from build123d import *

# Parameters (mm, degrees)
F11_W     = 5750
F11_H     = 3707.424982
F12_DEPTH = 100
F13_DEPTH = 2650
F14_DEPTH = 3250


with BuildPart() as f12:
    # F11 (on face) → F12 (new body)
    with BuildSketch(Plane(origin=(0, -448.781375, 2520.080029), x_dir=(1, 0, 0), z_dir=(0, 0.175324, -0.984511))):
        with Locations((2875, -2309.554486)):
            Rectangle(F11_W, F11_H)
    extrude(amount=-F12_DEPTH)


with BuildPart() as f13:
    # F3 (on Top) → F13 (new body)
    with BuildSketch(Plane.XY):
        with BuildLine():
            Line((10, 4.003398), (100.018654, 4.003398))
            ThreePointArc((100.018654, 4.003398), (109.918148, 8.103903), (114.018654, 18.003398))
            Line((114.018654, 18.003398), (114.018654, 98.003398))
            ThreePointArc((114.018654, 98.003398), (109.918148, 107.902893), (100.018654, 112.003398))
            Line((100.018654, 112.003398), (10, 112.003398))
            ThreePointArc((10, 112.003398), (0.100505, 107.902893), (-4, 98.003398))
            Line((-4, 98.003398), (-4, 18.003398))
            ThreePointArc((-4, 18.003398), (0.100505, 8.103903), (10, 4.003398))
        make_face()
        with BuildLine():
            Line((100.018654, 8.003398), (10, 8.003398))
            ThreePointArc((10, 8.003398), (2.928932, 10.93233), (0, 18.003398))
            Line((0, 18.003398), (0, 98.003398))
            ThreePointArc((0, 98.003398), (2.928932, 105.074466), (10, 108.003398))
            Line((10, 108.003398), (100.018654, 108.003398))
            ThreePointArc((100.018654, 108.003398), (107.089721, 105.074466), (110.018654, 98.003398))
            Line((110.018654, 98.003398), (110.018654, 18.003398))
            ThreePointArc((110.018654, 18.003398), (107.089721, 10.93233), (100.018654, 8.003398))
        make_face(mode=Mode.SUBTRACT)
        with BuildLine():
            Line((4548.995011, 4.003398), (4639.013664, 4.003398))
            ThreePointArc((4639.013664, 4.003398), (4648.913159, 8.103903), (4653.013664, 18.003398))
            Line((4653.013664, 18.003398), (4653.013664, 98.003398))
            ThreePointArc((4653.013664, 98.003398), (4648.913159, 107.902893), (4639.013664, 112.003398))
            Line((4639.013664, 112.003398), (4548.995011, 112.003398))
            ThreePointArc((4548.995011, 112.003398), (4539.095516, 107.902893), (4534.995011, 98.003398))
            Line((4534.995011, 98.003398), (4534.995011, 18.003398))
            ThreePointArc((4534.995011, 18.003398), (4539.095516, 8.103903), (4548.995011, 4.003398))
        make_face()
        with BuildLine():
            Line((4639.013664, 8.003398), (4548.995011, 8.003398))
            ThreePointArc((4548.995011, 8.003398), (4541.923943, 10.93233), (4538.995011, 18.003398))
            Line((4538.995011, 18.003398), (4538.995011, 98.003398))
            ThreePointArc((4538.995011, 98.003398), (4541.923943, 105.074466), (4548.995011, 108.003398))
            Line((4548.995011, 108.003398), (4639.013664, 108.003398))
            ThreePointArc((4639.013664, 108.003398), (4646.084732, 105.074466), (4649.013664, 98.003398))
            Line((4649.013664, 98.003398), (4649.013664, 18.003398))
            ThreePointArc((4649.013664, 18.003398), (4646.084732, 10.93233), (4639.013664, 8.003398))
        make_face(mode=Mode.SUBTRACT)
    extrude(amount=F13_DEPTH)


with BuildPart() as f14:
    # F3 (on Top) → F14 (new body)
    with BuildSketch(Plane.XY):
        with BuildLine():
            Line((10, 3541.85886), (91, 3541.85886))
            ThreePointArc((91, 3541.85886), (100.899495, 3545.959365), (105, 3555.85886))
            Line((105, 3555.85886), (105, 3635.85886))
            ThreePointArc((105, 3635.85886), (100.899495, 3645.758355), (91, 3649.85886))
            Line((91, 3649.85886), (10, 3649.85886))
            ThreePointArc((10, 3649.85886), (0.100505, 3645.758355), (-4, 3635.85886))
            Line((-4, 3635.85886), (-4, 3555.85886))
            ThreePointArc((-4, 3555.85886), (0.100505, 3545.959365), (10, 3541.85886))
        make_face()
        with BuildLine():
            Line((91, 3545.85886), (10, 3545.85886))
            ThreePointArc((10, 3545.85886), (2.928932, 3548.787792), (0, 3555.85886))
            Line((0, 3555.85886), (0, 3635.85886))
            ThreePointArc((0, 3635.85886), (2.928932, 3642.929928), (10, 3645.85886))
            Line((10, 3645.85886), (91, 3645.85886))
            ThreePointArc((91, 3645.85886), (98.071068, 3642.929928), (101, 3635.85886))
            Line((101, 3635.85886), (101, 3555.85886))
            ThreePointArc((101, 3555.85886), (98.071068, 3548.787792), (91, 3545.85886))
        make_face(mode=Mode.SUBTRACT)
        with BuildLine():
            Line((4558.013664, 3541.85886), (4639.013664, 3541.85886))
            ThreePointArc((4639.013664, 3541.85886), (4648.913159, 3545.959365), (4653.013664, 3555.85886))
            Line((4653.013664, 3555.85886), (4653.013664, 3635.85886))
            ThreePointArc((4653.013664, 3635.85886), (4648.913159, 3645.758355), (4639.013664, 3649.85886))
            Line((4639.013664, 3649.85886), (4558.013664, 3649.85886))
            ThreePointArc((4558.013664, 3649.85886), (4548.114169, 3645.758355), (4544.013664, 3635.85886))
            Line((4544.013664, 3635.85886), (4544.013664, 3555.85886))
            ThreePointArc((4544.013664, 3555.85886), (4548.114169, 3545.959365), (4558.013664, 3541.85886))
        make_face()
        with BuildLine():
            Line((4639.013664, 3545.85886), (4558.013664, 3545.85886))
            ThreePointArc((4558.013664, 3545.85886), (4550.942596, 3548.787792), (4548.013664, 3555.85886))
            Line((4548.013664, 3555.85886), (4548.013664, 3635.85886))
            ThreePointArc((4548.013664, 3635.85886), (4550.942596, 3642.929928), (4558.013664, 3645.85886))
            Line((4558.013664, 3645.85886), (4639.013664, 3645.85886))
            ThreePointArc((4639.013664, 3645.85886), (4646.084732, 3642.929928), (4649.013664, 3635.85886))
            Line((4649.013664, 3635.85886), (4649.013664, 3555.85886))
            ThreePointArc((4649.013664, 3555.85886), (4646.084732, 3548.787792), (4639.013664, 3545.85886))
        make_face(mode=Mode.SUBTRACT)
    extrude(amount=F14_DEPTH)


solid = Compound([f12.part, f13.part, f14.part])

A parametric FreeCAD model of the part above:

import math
import FreeCAD as App
import Part
import Sketcher

V = App.Vector
Q = App.Units.Quantity

doc = App.newDocument("Part")
params = doc.addObject("Spreadsheet::Sheet", "Params")
for row, (alias, value) in enumerate([
    ("sketch1_width", "5750 mm"),
    ("pad1_length", "100 mm"),
    ("sketch2_radius", "14.000001 mm"),
    ("sketch2_radius2", "10.000001 mm"),
    ("sketch2_height", "80 mm"),
    ("pad2_length", "2650 mm"),
    ("sketch3_radius", "14 mm"),
    ("sketch3_radius2", "9.999999 mm"),
    ("sketch3_width", "81 mm"),
    ("sketch3_height", "80 mm"),
    ("pad3_length", "3250 mm"),
], start=1):
    params.set(f"A{row}", alias)
    params.set(f"B{row}", "=" + value)
    params.setAlias(f"B{row}", alias)

body = doc.addObject("PartDesign::Body", "Body")

sketch1 = doc.addObject("Sketcher::SketchObject", "Sketch")
body.addObject(sketch1)
sketch1.Placement = App.Placement(V(0, -448.781375, 2520.080029), App.Rotation(V(1, 0, 0), V(0, -0.984510796, -0.175323964), V(0, 0.175323964, -0.984510796), "ZXY"))
sketch1.addGeometry([
    Part.LineSegment(V(0, -455.841995, 0), V(0, -4163.266976, 0)),
    Part.LineSegment(V(0, -4163.266976, 0), V(5750, -4163.266976, 0)),
    Part.LineSegment(V(5750, -4163.266976, 0), V(5750, -455.841995, 0)),
    Part.LineSegment(V(5750, -455.841995, 0), V(0, -455.841995, 0)),
], False)
sketch1.addConstraint([
    Sketcher.Constraint("Coincident", 0, 2, 1, 1),
    Sketcher.Constraint("Coincident", 1, 2, 2, 1),
    Sketcher.Constraint("Coincident", 2, 2, 3, 1),
    Sketcher.Constraint("Coincident", 3, 2, 0, 1),
    Sketcher.Constraint("Vertical", 0),
    Sketcher.Constraint("Horizontal", 1),
    Sketcher.Constraint("Vertical", 2),
    Sketcher.Constraint("Horizontal", 3),
    Sketcher.Constraint("PointOnObject", 0, 2, -2),
    Sketcher.Constraint("DistanceX", 1, 1, 1, 2, Q("5750 mm")),
    Sketcher.Constraint("DistanceY", 0, 2, 0, 1, Q("3707.424981 mm")),
    Sketcher.Constraint("DistanceY", 0, 2, -1, 1, Q("4163.266976 mm")),
])
sketch1.setExpression("Constraints[9]", "Params.sketch1_width")
pad1 = doc.addObject("PartDesign::Pad", "Pad")
body.addObject(pad1)
pad1.Profile = sketch1
pad1.setExpression("Length", "Params.pad1_length")
pad1.Reversed = True
body2 = doc.addObject("PartDesign::Body", "Body001")
body2.AllowCompound = True

sketch2 = doc.addObject("Sketcher::SketchObject", "Sketch001")
body2.addObject(sketch2)
sketch2.AttachmentSupport = (doc.getObject("XY_Plane001"), [""])
sketch2.MapMode = "FlatFace"
sketch2.addGeometry([
    Part.LineSegment(V(10, 4.003398, 0), V(100.018654, 4.003398, 0)),
    Part.ArcOfCircle(Part.Circle(V(100.018653, 18.003399, 0), V(0, 0, 1), 14.000001), math.radians(-89.999994), math.radians(-0.000006)),
    Part.LineSegment(V(114.018654, 18.003398, 0), V(114.018654, 98.003398, 0)),
    Part.ArcOfCircle(Part.Circle(V(100.018653, 98.003397, 0), V(0, 0, 1), 14.000001), math.radians(0.000006), math.radians(89.999994)),
    Part.LineSegment(V(100.018654, 112.003398, 0), V(10, 112.003398, 0)),
    Part.ArcOfCircle(Part.Circle(V(10, 98.003398, 0), V(0, 0, 1), 14), math.radians(89.999999), math.radians(180.000001)),
    Part.LineSegment(V(-4, 98.003398, 0), V(-4, 18.003398, 0)),
    Part.ArcOfCircle(Part.Circle(V(10, 18.003398, 0), V(0, 0, 1), 14), math.radians(179.999999), math.radians(270.000001)),
    Part.ArcOfCircle(Part.Circle(V(100.018653, 18.003399, 0), V(0, 0, 1), 10.000001), math.radians(-89.999994), math.radians(-0.000006)),
    Part.LineSegment(V(100.018654, 8.003398, 0), V(10, 8.003398, 0)),
    Part.ArcOfCircle(Part.Circle(V(9.999999, 18.003397, 0), V(0, 0, 1), 9.999999), math.radians(179.999996), math.radians(270.000004)),
    Part.LineSegment(V(0, 18.003398, 0), V(0, 98.003398, 0)),
    Part.ArcOfCircle(Part.Circle(V(9.999999, 98.003399, 0), V(0, 0, 1), 9.999999), math.radians(89.999996), math.radians(180.000004)),
    Part.LineSegment(V(10, 108.003398, 0), V(100.018654, 108.003398, 0)),
    Part.ArcOfCircle(Part.Circle(V(100.018653, 98.003397, 0), V(0, 0, 1), 10.000001), math.radians(0.000006), math.radians(89.999994)),
    Part.LineSegment(V(110.018654, 98.003398, 0), V(110.018654, 18.003398, 0)),
    Part.LineSegment(V(4548.995011, 4.003398, 0), V(4639.013664, 4.003398, 0)),
    Part.ArcOfCircle(Part.Circle(V(4639.013664, 18.003398, 0), V(0, 0, 1), 14), math.radians(-90.000001), math.radians(0.000001)),
    Part.LineSegment(V(4653.013664, 18.003398, 0), V(4653.013664, 98.003398, 0)),
    Part.ArcOfCircle(Part.Circle(V(4639.013664, 98.003398, 0), V(0, 0, 1), 14), math.radians(-0.000001), math.radians(90.000001)),
    Part.LineSegment(V(4639.013664, 112.003398, 0), V(4548.995011, 112.003398, 0)),
    Part.ArcOfCircle(Part.Circle(V(4548.995011, 98.003398, 0), V(0, 0, 1), 14), math.radians(89.999999), math.radians(180.000001)),
    Part.LineSegment(V(4534.995011, 98.003398, 0), V(4534.995011, 18.003398, 0)),
    Part.ArcOfCircle(Part.Circle(V(4548.995011, 18.003398, 0), V(0, 0, 1), 14), math.radians(179.999999), math.radians(270.000001)),
    Part.ArcOfCircle(Part.Circle(V(4639.013665, 18.003397, 0), V(0, 0, 1), 9.999999), math.radians(-90.000004), math.radians(0.000004)),
    Part.LineSegment(V(4639.013664, 8.003398, 0), V(4548.995011, 8.003398, 0)),
    Part.ArcOfCircle(Part.Circle(V(4548.99501, 18.003397, 0), V(0, 0, 1), 9.999999), math.radians(179.999996), math.radians(270.000004)),
    Part.LineSegment(V(4538.995011, 18.003398, 0), V(4538.995011, 98.003398, 0)),
    Part.ArcOfCircle(Part.Circle(V(4548.99501, 98.003399, 0), V(0, 0, 1), 9.999999), math.radians(89.999996), math.radians(180.000004)),
    Part.LineSegment(V(4548.995011, 108.003398, 0), V(4639.013664, 108.003398, 0)),
    Part.ArcOfCircle(Part.Circle(V(4639.013665, 98.003399, 0), V(0, 0, 1), 9.999999), math.radians(-0.000004), math.radians(90.000004)),
    Part.LineSegment(V(4649.013664, 98.003398, 0), V(4649.013664, 18.003398, 0)),
], False)
sketch2.addConstraint([
    Sketcher.Constraint("Tangent", 0, 2, 1, 1),
    Sketcher.Constraint("Tangent", 1, 2, 2, 1),
    Sketcher.Constraint("Tangent", 2, 2, 3, 1),
    Sketcher.Constraint("Tangent", 3, 2, 4, 1),
    Sketcher.Constraint("Tangent", 4, 2, 5, 1),
    Sketcher.Constraint("Tangent", 5, 2, 6, 1),
    Sketcher.Constraint("Tangent", 6, 2, 7, 1),
    Sketcher.Constraint("Tangent", 7, 2, 0, 1),
    Sketcher.Constraint("Tangent", 8, 1, 9, 1),
    Sketcher.Constraint("Tangent", 9, 2, 10, 2),
    Sketcher.Constraint("Tangent", 10, 1, 11, 1),
    Sketcher.Constraint("Tangent", 11, 2, 12, 2),
    Sketcher.Constraint("Tangent", 12, 1, 13, 1),
    Sketcher.Constraint("Tangent", 13, 2, 14, 2),
    Sketcher.Constraint("Tangent", 14, 1, 15, 1),
    Sketcher.Constraint("Tangent", 15, 2, 8, 2),
    Sketcher.Constraint("Tangent", 16, 2, 17, 1),
    Sketcher.Constraint("Tangent", 17, 2, 18, 1),
    Sketcher.Constraint("Tangent", 18, 2, 19, 1),
    Sketcher.Constraint("Tangent", 19, 2, 20, 1),
    Sketcher.Constraint("Tangent", 20, 2, 21, 1),
    Sketcher.Constraint("Tangent", 21, 2, 22, 1),
    Sketcher.Constraint("Tangent", 22, 2, 23, 1),
    Sketcher.Constraint("Tangent", 23, 2, 16, 1),
    Sketcher.Constraint("Tangent", 24, 1, 25, 1),
    Sketcher.Constraint("Tangent", 25, 2, 26, 2),
    Sketcher.Constraint("Tangent", 26, 1, 27, 1),
    Sketcher.Constraint("Tangent", 27, 2, 28, 2),
    Sketcher.Constraint("Tangent", 28, 1, 29, 1),
    Sketcher.Constraint("Tangent", 29, 2, 30, 2),
    Sketcher.Constraint("Tangent", 30, 1, 31, 1),
    Sketcher.Constraint("Tangent", 31, 2, 24, 2),
    Sketcher.Constraint("Horizontal", 0),
    Sketcher.Constraint("Vertical", 2),
    Sketcher.Constraint("Horizontal", 4),
    Sketcher.Constraint("Vertical", 6),
    Sketcher.Constraint("Horizontal", 9),
    Sketcher.Constraint("Vertical", 11),
    Sketcher.Constraint("Horizontal", 13),
    Sketcher.Constraint("Vertical", 15),
    Sketcher.Constraint("Horizontal", 16),
    Sketcher.Constraint("Vertical", 18),
    Sketcher.Constraint("Horizontal", 20),
    Sketcher.Constraint("Vertical", 22),
    Sketcher.Constraint("Horizontal", 25),
    Sketcher.Constraint("Vertical", 27),
    Sketcher.Constraint("Horizontal", 29),
    Sketcher.Constraint("Vertical", 31),
    Sketcher.Constraint("Coincident", 8, 3, 1, 3),
    Sketcher.Constraint("Coincident", 10, 3, 7, 3),
    Sketcher.Constraint("Coincident", 12, 3, 5, 3),
    Sketcher.Constraint("Coincident", 24, 3, 17, 3),
    Sketcher.Constraint("Coincident", 26, 3, 23, 3),
    Sketcher.Constraint("Coincident", 28, 3, 21, 3),
    Sketcher.Constraint("Equal", 1, 3),
    Sketcher.Constraint("Equal", 3, 5),
    Sketcher.Constraint("Equal", 5, 7),
    Sketcher.Constraint("Equal", 12, 14),
    Sketcher.Constraint("Equal", 7, 17),
    Sketcher.Constraint("Equal", 17, 19),
    Sketcher.Constraint("Equal", 19, 21),
    Sketcher.Constraint("Equal", 21, 23),
    Sketcher.Constraint("Equal", 14, 24),
    Sketcher.Constraint("Equal", 28, 30),
    Sketcher.Constraint("PointOnObject", 10, 1, -2),
    Sketcher.Constraint("Horizontal", 10, 3, 17, 3),
    Sketcher.Constraint("Horizontal", 14, 3, 19, 3),
    Sketcher.Constraint("Equal", 13, 16),
    Sketcher.Constraint("Radius", 1, Q("14.000001 mm")),
    Sketcher.Constraint("Radius", 8, Q("10.000001 mm")),
    Sketcher.Constraint("DistanceY", 2, 1, 2, 2, Q("80 mm")),
    Sketcher.Constraint("DistanceY", -1, 1, 1, 3, Q("18.003399 mm")),
    Sketcher.Constraint("DistanceX", 0, 1, 0, 2, Q("90.018654 mm")),
    Sketcher.Constraint("DistanceX", -1, 1, 21, 3, Q("4548.995011 mm")),
])
sketch2.setExpression("Constraints[68]", "Params.sketch2_radius")
sketch2.setExpression("Constraints[69]", "Params.sketch2_radius2")
sketch2.setExpression("Constraints[70]", "Params.sketch2_height")
pad2 = doc.addObject("PartDesign::Pad", "Pad001")
body2.addObject(pad2)
pad2.Profile = sketch2
pad2.setExpression("Length", "Params.pad2_length")
body3 = doc.addObject("PartDesign::Body", "Body002")
body3.AllowCompound = True

sketch3 = doc.addObject("Sketcher::SketchObject", "Sketch002")
body3.addObject(sketch3)
sketch3.AttachmentSupport = (doc.getObject("XY_Plane002"), [""])
sketch3.MapMode = "FlatFace"
sketch3.addGeometry([
    Part.LineSegment(V(10, 3541.85886, 0), V(91, 3541.85886, 0)),
    Part.ArcOfCircle(Part.Circle(V(91, 3555.85886, 0), V(0, 0, 1), 14), math.radians(-90.000001), math.radians(0.000001)),
    Part.LineSegment(V(105, 3555.85886, 0), V(105, 3635.85886, 0)),
    Part.ArcOfCircle(Part.Circle(V(91, 3635.85886, 0), V(0, 0, 1), 14), math.radians(-0.000001), math.radians(90.000001)),
    Part.LineSegment(V(91, 3649.85886, 0), V(10, 3649.85886, 0)),
    Part.ArcOfCircle(Part.Circle(V(10, 3635.85886, 0), V(0, 0, 1), 14), math.radians(89.999999), math.radians(180.000001)),
    Part.LineSegment(V(-4, 3635.85886, 0), V(-4, 3555.85886, 0)),
    Part.ArcOfCircle(Part.Circle(V(10, 3555.85886, 0), V(0, 0, 1), 14), math.radians(179.999999), math.radians(270.000001)),
    Part.ArcOfCircle(Part.Circle(V(91.000001, 3555.858859, 0), V(0, 0, 1), 9.999999), math.radians(-90.000004), math.radians(0.000004)),
    Part.LineSegment(V(91, 3545.85886, 0), V(10, 3545.85886, 0)),
    Part.ArcOfCircle(Part.Circle(V(9.999999, 3555.858859, 0), V(0, 0, 1), 9.999999), math.radians(179.999996), math.radians(270.000004)),
    Part.LineSegment(V(0, 3555.85886, 0), V(0, 3635.85886, 0)),
    Part.ArcOfCircle(Part.Circle(V(9.999999, 3635.858861, 0), V(0, 0, 1), 9.999999), math.radians(89.999996), math.radians(180.000004)),
    Part.LineSegment(V(10, 3645.85886, 0), V(91, 3645.85886, 0)),
    Part.ArcOfCircle(Part.Circle(V(91.000001, 3635.858861, 0), V(0, 0, 1), 9.999999), math.radians(-0.000004), math.radians(90.000004)),
    Part.LineSegment(V(101, 3635.85886, 0), V(101, 3555.85886, 0)),
    Part.LineSegment(V(4558.013664, 3541.85886, 0), V(4639.013664, 3541.85886, 0)),
    Part.ArcOfCircle(Part.Circle(V(4639.013664, 3555.85886, 0), V(0, 0, 1), 14), math.radians(-90.000001), math.radians(0.000001)),
    Part.LineSegment(V(4653.013664, 3555.85886, 0), V(4653.013664, 3635.85886, 0)),
    Part.ArcOfCircle(Part.Circle(V(4639.013664, 3635.85886, 0), V(0, 0, 1), 14), math.radians(-0.000001), math.radians(90.000001)),
    Part.LineSegment(V(4639.013664, 3649.85886, 0), V(4558.013664, 3649.85886, 0)),
    Part.ArcOfCircle(Part.Circle(V(4558.013664, 3635.85886, 0), V(0, 0, 1), 14), math.radians(89.999999), math.radians(180.000001)),
    Part.LineSegment(V(4544.013664, 3635.85886, 0), V(4544.013664, 3555.85886, 0)),
    Part.ArcOfCircle(Part.Circle(V(4558.013664, 3555.85886, 0), V(0, 0, 1), 14), math.radians(179.999999), math.radians(270.000001)),
    Part.ArcOfCircle(Part.Circle(V(4639.013665, 3555.858859, 0), V(0, 0, 1), 9.999999), math.radians(-90.000004), math.radians(0.000004)),
    Part.LineSegment(V(4639.013664, 3545.85886, 0), V(4558.013664, 3545.85886, 0)),
    Part.ArcOfCircle(Part.Circle(V(4558.013663, 3555.858859, 0), V(0, 0, 1), 9.999999), math.radians(179.999996), math.radians(270.000004)),
    Part.LineSegment(V(4548.013664, 3555.85886, 0), V(4548.013664, 3635.85886, 0)),
    Part.ArcOfCircle(Part.Circle(V(4558.013663, 3635.858861, 0), V(0, 0, 1), 9.999999), math.radians(89.999996), math.radians(180.000004)),
    Part.LineSegment(V(4558.013664, 3645.85886, 0), V(4639.013664, 3645.85886, 0)),
    Part.ArcOfCircle(Part.Circle(V(4639.013665, 3635.858861, 0), V(0, 0, 1), 9.999999), math.radians(-0.000004), math.radians(90.000004)),
    Part.LineSegment(V(4649.013664, 3635.85886, 0), V(4649.013664, 3555.85886, 0)),
], False)
sketch3.addConstraint([
    Sketcher.Constraint("Tangent", 0, 2, 1, 1),
    Sketcher.Constraint("Tangent", 1, 2, 2, 1),
    Sketcher.Constraint("Tangent", 2, 2, 3, 1),
    Sketcher.Constraint("Tangent", 3, 2, 4, 1),
    Sketcher.Constraint("Tangent", 4, 2, 5, 1),
    Sketcher.Constraint("Tangent", 5, 2, 6, 1),
    Sketcher.Constraint("Tangent", 6, 2, 7, 1),
    Sketcher.Constraint("Tangent", 7, 2, 0, 1),
    Sketcher.Constraint("Tangent", 8, 1, 9, 1),
    Sketcher.Constraint("Tangent", 9, 2, 10, 2),
    Sketcher.Constraint("Tangent", 10, 1, 11, 1),
    Sketcher.Constraint("Tangent", 11, 2, 12, 2),
    Sketcher.Constraint("Tangent", 12, 1, 13, 1),
    Sketcher.Constraint("Tangent", 13, 2, 14, 2),
    Sketcher.Constraint("Tangent", 14, 1, 15, 1),
    Sketcher.Constraint("Tangent", 15, 2, 8, 2),
    Sketcher.Constraint("Tangent", 16, 2, 17, 1),
    Sketcher.Constraint("Tangent", 17, 2, 18, 1),
    Sketcher.Constraint("Tangent", 18, 2, 19, 1),
    Sketcher.Constraint("Tangent", 19, 2, 20, 1),
    Sketcher.Constraint("Tangent", 20, 2, 21, 1),
    Sketcher.Constraint("Tangent", 21, 2, 22, 1),
    Sketcher.Constraint("Tangent", 22, 2, 23, 1),
    Sketcher.Constraint("Tangent", 23, 2, 16, 1),
    Sketcher.Constraint("Tangent", 24, 1, 25, 1),
    Sketcher.Constraint("Tangent", 25, 2, 26, 2),
    Sketcher.Constraint("Tangent", 26, 1, 27, 1),
    Sketcher.Constraint("Tangent", 27, 2, 28, 2),
    Sketcher.Constraint("Tangent", 28, 1, 29, 1),
    Sketcher.Constraint("Tangent", 29, 2, 30, 2),
    Sketcher.Constraint("Tangent", 30, 1, 31, 1),
    Sketcher.Constraint("Tangent", 31, 2, 24, 2),
    Sketcher.Constraint("Horizontal", 0),
    Sketcher.Constraint("Vertical", 2),
    Sketcher.Constraint("Horizontal", 4),
    Sketcher.Constraint("Vertical", 6),
    Sketcher.Constraint("Horizontal", 9),
    Sketcher.Constraint("Vertical", 11),
    Sketcher.Constraint("Horizontal", 13),
    Sketcher.Constraint("Vertical", 15),
    Sketcher.Constraint("Horizontal", 16),
    Sketcher.Constraint("Vertical", 18),
    Sketcher.Constraint("Horizontal", 20),
    Sketcher.Constraint("Vertical", 22),
    Sketcher.Constraint("Horizontal", 25),
    Sketcher.Constraint("Vertical", 27),
    Sketcher.Constraint("Horizontal", 29),
    Sketcher.Constraint("Vertical", 31),
    Sketcher.Constraint("Coincident", 8, 3, 1, 3),
    Sketcher.Constraint("Coincident", 10, 3, 7, 3),
    Sketcher.Constraint("Coincident", 12, 3, 5, 3),
    Sketcher.Constraint("Coincident", 24, 3, 17, 3),
    Sketcher.Constraint("Coincident", 26, 3, 23, 3),
    Sketcher.Constraint("Coincident", 28, 3, 21, 3),
    Sketcher.Constraint("Equal", 1, 3),
    Sketcher.Constraint("Equal", 3, 5),
    Sketcher.Constraint("Equal", 5, 7),
    Sketcher.Constraint("Equal", 12, 14),
    Sketcher.Constraint("Equal", 7, 17),
    Sketcher.Constraint("Equal", 17, 19),
    Sketcher.Constraint("Equal", 19, 21),
    Sketcher.Constraint("Equal", 21, 23),
    Sketcher.Constraint("Equal", 14, 24),
    Sketcher.Constraint("Equal", 28, 30),
    Sketcher.Constraint("PointOnObject", 10, 1, -2),
    Sketcher.Constraint("Horizontal", 10, 3, 17, 3),
    Sketcher.Constraint("Horizontal", 14, 3, 19, 3),
    Sketcher.Constraint("Equal", 13, 16),
    Sketcher.Constraint("Radius", 1, Q("14 mm")),
    Sketcher.Constraint("Radius", 8, Q("9.999999 mm")),
    Sketcher.Constraint("DistanceX", 0, 1, 0, 2, Q("81 mm")),
    Sketcher.Constraint("DistanceY", 2, 1, 2, 2, Q("80 mm")),
    Sketcher.Constraint("DistanceY", -1, 1, 1, 3, Q("3555.85886 mm")),
    Sketcher.Constraint("DistanceX", -1, 1, 17, 3, Q("4639.013664 mm")),
])
sketch3.setExpression("Constraints[68]", "Params.sketch3_radius")
sketch3.setExpression("Constraints[69]", "Params.sketch3_radius2")
sketch3.setExpression("Constraints[70]", "Params.sketch3_width")
sketch3.setExpression("Constraints[71]", "Params.sketch3_height")
pad3 = doc.addObject("PartDesign::Pad", "Pad002")
body3.addObject(pad3)
pad3.Profile = sketch3
pad3.setExpression("Length", "Params.pad3_length")

doc.recompute()
